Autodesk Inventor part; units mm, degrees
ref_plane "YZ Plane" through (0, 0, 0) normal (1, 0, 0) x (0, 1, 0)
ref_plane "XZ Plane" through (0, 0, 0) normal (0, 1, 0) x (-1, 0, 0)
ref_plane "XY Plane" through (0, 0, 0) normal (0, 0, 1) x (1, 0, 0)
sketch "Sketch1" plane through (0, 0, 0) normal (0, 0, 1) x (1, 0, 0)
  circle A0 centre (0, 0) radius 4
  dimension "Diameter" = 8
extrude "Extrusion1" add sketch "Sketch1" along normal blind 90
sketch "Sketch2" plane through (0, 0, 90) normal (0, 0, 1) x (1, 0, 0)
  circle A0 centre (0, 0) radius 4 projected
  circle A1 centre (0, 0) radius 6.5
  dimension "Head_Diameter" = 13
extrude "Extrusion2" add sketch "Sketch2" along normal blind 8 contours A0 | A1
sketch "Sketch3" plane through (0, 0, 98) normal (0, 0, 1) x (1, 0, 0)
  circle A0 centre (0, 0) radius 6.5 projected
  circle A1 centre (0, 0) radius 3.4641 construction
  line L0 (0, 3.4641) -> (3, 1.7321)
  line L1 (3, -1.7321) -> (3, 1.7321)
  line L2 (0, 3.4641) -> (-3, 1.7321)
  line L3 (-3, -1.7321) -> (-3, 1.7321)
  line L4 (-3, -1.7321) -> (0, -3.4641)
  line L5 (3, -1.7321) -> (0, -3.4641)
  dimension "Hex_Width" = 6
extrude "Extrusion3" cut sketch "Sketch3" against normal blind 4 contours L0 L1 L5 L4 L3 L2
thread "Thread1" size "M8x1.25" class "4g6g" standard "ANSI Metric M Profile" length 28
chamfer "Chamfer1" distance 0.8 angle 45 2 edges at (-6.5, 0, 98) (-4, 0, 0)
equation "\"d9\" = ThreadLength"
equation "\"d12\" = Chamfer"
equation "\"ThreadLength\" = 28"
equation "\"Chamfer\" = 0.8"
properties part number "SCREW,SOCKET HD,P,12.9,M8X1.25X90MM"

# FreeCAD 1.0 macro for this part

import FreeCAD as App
import Part
import Sketcher
Q = App.Units.Quantity


def edges_at(feature, points):
    """Names of the edges that pass closest to the given points."""
    edges = feature.Shape.Edges
    near = lambda p: min(range(len(edges)), key=lambda i: edges[i].distToShape(Part.Vertex(*p))[0])
    return sorted({f"Edge{near(p) + 1}" for p in points})


def add_polygon(sketch, points):
    """Adds a closed chain of lines whose ends are joined by coincident constraints."""
    first, n = sketch.GeometryCount, len(points)
    for a, b in zip(points, points[1:] + points[:1]):
        sketch.addGeometry(Part.LineSegment(App.Vector(*a, 0), App.Vector(*b, 0)), False)
    for i in range(n):
        sketch.addConstraint(Sketcher.Constraint("Coincident", first + i, 2, first + (i + 1) % n, 1))

doc = App.newDocument("Part")
body = doc.addObject("PartDesign::Body", "Body")

# Sketch on XY plane
sketch1 = doc.addObject("Sketcher::SketchObject", "Sketch")
body.addObject(sketch1)
sketch1.AttachmentSupport = (doc.XY_Plane, [""])
sketch1.MapMode = "FlatFace"
sketch1.addGeometry(Part.Circle(App.Vector(0, 0, 0), App.Vector(0, 0, 1), 4), False)
sketch1.addConstraint([
    Sketcher.Constraint("Coincident", 0, 3, -1, 1),
    Sketcher.Constraint("Diameter", 0, Q("8 mm")),
])
pad1 = doc.addObject("PartDesign::Pad", "Pad")
body.addObject(pad1)
pad1.Profile = sketch1
pad1.Length = 90

# Sketch on XY plane
sketch2 = doc.addObject("Sketcher::SketchObject", "Sketch001")
body.addObject(sketch2)
sketch2.AttachmentSupport = (doc.XY_Plane, [""])
sketch2.MapMode = "FlatFace"
sketch2.AttachmentOffset = App.Placement(App.Vector(0, 0, 90), App.Rotation())
sketch2.addGeometry(Part.Circle(App.Vector(0, 0, 0), App.Vector(0, 0, 1), 6), False)
sketch2.addConstraint([
    Sketcher.Constraint("Coincident", 0, 3, -1, 1),
    Sketcher.Constraint("Diameter", 0, Q("13 mm")),
])
pad2 = doc.addObject("PartDesign::Pad", "Pad001")
body.addObject(pad2)
pad2.Profile = sketch2
pad2.Length = 8

# Sketch on XY plane
sketch3 = doc.addObject("Sketcher::SketchObject", "Sketch002")
body.addObject(sketch3)
sketch3.AttachmentSupport = (doc.XY_Plane, [""])
sketch3.MapMode = "FlatFace"
sketch3.AttachmentOffset = App.Placement(App.Vector(0, 0, 98), App.Rotation())
add_polygon(sketch3, [(3, 1.7), (0, 3.5), (-3, 1.7), (-3, -1.7), (0, -3.5), (3, -1.7)])  # lines 0-5
sketch3.addConstraint([
    Sketcher.Constraint("Vertical", 2),
    Sketcher.Constraint("Vertical", 5),
    Sketcher.Constraint("Symmetric", 0, 2, 3, 2, -1, 1),
    Sketcher.Constraint("Symmetric", 1, 2, 4, 2, -1, 1),
    Sketcher.Constraint("PointOnObject", 0, 2, -2),
    Sketcher.Constraint("Parallel", 0, 3),
    Sketcher.Constraint("Horizontal", 2, 2, 4, 2),
    Sketcher.Constraint("DistanceX", 2, 2, 4, 2, Q("6 mm")),
    Sketcher.Constraint("Angle", 0, Q("150.0007 deg")),
    Sketcher.Constraint("DistanceY", 2, 2, 2, 1, Q("3.4642 mm")),
])
pocket1 = doc.addObject("PartDesign::Pocket", "Pocket")
body.addObject(pocket1)
pocket1.Profile = sketch3
pocket1.Length = 4
doc.recompute()

chamfer = doc.addObject("PartDesign::Chamfer", "Chamfer")
body.addObject(chamfer)
chamfer.Base = (pocket1, edges_at(pocket1, [(-6.5, 0, 98), (-4, 0, 0)]))
chamfer.Size = 0.8

doc.recompute()
